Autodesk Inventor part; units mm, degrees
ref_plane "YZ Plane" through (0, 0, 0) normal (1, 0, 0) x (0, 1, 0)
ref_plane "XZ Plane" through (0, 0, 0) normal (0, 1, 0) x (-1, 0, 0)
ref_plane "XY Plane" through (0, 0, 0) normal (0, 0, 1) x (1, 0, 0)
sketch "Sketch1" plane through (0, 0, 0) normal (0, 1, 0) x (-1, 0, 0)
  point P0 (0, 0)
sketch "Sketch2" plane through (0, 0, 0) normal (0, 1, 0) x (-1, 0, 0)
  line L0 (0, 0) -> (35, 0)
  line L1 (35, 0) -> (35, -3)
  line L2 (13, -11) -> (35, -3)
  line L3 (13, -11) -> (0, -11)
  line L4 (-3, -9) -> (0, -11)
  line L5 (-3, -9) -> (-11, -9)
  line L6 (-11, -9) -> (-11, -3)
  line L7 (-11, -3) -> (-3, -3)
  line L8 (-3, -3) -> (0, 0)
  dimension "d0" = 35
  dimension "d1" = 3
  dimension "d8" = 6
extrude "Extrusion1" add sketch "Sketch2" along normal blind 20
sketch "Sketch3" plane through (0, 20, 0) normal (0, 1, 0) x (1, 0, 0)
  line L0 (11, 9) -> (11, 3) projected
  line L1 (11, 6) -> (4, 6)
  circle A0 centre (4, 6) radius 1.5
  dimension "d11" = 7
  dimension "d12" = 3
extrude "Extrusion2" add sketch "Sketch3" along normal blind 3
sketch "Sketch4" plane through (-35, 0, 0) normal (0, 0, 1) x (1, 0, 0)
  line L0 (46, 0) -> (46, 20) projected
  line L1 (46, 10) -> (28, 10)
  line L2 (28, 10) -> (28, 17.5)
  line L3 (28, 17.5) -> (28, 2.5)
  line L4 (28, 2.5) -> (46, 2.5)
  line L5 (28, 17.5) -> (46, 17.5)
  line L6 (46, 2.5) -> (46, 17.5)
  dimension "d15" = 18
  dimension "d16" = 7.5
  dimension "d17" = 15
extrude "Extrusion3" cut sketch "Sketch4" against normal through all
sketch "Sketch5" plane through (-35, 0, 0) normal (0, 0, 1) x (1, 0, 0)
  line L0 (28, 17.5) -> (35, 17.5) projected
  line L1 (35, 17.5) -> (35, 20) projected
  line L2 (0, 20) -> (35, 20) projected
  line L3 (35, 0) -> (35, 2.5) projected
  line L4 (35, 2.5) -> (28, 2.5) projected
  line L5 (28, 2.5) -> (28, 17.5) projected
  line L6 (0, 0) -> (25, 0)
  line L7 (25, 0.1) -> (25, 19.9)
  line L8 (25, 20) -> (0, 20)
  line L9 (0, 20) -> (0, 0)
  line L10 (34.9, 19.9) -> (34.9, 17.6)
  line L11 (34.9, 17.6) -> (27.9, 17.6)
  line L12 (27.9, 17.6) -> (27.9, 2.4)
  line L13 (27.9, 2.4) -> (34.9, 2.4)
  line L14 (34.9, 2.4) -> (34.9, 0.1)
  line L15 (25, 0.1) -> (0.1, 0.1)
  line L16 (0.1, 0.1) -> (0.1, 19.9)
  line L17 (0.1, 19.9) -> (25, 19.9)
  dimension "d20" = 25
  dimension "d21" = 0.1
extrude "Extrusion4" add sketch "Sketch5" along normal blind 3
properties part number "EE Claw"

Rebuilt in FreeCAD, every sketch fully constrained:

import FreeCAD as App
import Part
import Sketcher

V = App.Vector
Q = App.Units.Quantity

doc = App.newDocument("Part")
params = doc.addObject("Spreadsheet::Sheet", "Params")
for row, (alias, value) in enumerate([
    ("sketch1_width", "35 mm"),
    ("sketch1_height", "6 mm"),
    ("sketch1_height2", "3 mm"),
    ("sketch1_width2", "8 mm"),
    ("sketch1_width3", "13 mm"),
    ("pad1_length", "20 mm"),
    ("sketch2_diameter", "3 mm"),
    ("pad2_length", "3 mm"),
    ("sketch3_width", "18 mm"),
    ("sketch3_height", "15 mm"),
    ("sketch4_width", "24.9 mm"),
    ("sketch4_height", "19.8 mm"),
    ("pad3_length", "3 mm"),
], start=1):
    params.set(f"A{row}", alias)
    params.set(f"B{row}", "=" + value)
    params.setAlias(f"B{row}", alias)

body = doc.addObject("PartDesign::Body", "Body")

# Sketch on XZ plane
sketch1 = body.newObject("Sketcher::SketchObject", "Sketch")
sketch1.AttachmentSupport = (doc.getObject("XZ_Plane"), [""])
sketch1.MapMode = "FlatFace"
sketch1.addGeometry([
    Part.LineSegment(V(-35, 0, 0), V(0, 0, 0)),  # 0
    Part.LineSegment(V(0, 0, 0), V(3, -3, 0)),  # 1
    Part.LineSegment(V(3, -3, 0), V(11, -3, 0)),  # 2
    Part.LineSegment(V(11, -3, 0), V(11, -9, 0)),  # 3
    Part.LineSegment(V(11, -9, 0), V(3, -9, 0)),  # 4
    Part.LineSegment(V(3, -9, 0), V(0, -11, 0)),  # 5
    Part.LineSegment(V(0, -11, 0), V(-13, -11, 0)),  # 6
    Part.LineSegment(V(-13, -11, 0), V(-35, -3, 0)),  # 7
    Part.LineSegment(V(-35, -3, 0), V(-35, 0, 0)),  # 8
], False)
sketch1.addConstraint([
    Sketcher.Constraint("Coincident", 0, 2, 1, 1),
    Sketcher.Constraint("Coincident", 1, 2, 2, 1),
    Sketcher.Constraint("Coincident", 2, 2, 3, 1),
    Sketcher.Constraint("Coincident", 3, 2, 4, 1),
    Sketcher.Constraint("Coincident", 4, 2, 5, 1),
    Sketcher.Constraint("Coincident", 5, 2, 6, 1),
    Sketcher.Constraint("Coincident", 6, 2, 7, 1),
    Sketcher.Constraint("Coincident", 7, 2, 8, 1),
    Sketcher.Constraint("Coincident", 8, 2, 0, 1),
    Sketcher.Constraint("Horizontal", 0),
    Sketcher.Constraint("Horizontal", 2),
    Sketcher.Constraint("Vertical", 3),
    Sketcher.Constraint("Horizontal", 4),
    Sketcher.Constraint("Horizontal", 6),
    Sketcher.Constraint("Vertical", 8),
    Sketcher.Constraint("Coincident", 0, 2, -1, 1),
    Sketcher.Constraint("PointOnObject", 5, 2, -2),
    Sketcher.Constraint("Horizontal", 2, 2, 7, 2),
    Sketcher.Constraint("Vertical", 1, 2, 4, 2),
    Sketcher.Constraint("DistanceX", 0, 1, 0, 2, Q("35 mm")),
    Sketcher.Constraint("DistanceY", 3, 2, 3, 1, Q("6 mm")),
    Sketcher.Constraint("DistanceY", 8, 1, 8, 2, Q("3 mm")),
    Sketcher.Constraint("DistanceX", -1, 1, 1, 2, Q("3 mm")),
    Sketcher.Constraint("DistanceX", 2, 1, 2, 2, Q("8 mm")),
    Sketcher.Constraint("DistanceX", 6, 2, 6, 1, Q("13 mm")),
    Sketcher.Constraint("DistanceY", 5, 2, -1, 1, Q("11 mm")),
])
sketch1.setExpression("Constraints[19]", "Params.sketch1_width")
sketch1.setExpression("Constraints[20]", "Params.sketch1_height")
sketch1.setExpression("Constraints[21]", "Params.sketch1_height2")
sketch1.setExpression("Constraints[23]", "Params.sketch1_width2")
sketch1.setExpression("Constraints[24]", "Params.sketch1_width3")
pad1 = body.newObject("PartDesign::Pad", "Pad")
pad1.Profile = sketch1
pad1.setExpression("Length", "Params.pad1_length")
pad1.Reversed = True

# Sketch on XZ plane
sketch2 = body.newObject("Sketcher::SketchObject", "Sketch001")
sketch2.AttachmentSupport = (doc.getObject("XZ_Plane"), [""])
sketch2.MapMode = "FlatFace"
sketch2.AttachmentOffset = App.Placement(V(0, 0, -20), App.Rotation())
sketch2.addGeometry(Part.Circle(V(4, -6, 0), V(0, 0, 1), 1.5), False)
sketch2.addConstraint([
    Sketcher.Constraint("Diameter", 0, Q("3 mm")),
    Sketcher.Constraint("DistanceX", -1, 1, 0, 3, Q("4 mm")),
    Sketcher.Constraint("DistanceY", 0, 3, -1, 1, Q("6 mm")),
])
sketch2.setExpression("Constraints[0]", "Params.sketch2_diameter")
pad2 = body.newObject("PartDesign::Pad", "Pad001")
pad2.Profile = sketch2
pad2.setExpression("Length", "Params.pad2_length")
pad2.Reversed = True

# Sketch on XY plane
sketch3 = body.newObject("Sketcher::SketchObject", "Sketch002")
sketch3.AttachmentSupport = (doc.getObject("XY_Plane"), [""])
sketch3.MapMode = "FlatFace"
sketch3.addGeometry([
    Part.LineSegment(V(-7, 2, 0), V(11, 2, 0)),
    Part.LineSegment(V(11, 2, 0), V(11, 18, 0)),
    Part.LineSegment(V(11, 18, 0), V(-7, 18, 0)),
    Part.LineSegment(V(-7, 18, 0), V(-7, 2, 0)),
], False)
sketch3.addConstraint([
    Sketcher.Constraint("Coincident", 0, 2, 1, 1),
    Sketcher.Constraint("Coincident", 1, 2, 2, 1),
    Sketcher.Constraint("Coincident", 2, 2, 3, 1),
    Sketcher.Constraint("Coincident", 3, 2, 0, 1),
    Sketcher.Constraint("Horizontal", 0),
    Sketcher.Constraint("Vertical", 1),
    Sketcher.Constraint("Horizontal", 2),
    Sketcher.Constraint("Vertical", 3),
    Sketcher.Constraint("DistanceX", 0, 1, 0, 2, Q("18 mm")),
    Sketcher.Constraint("DistanceY", 1, 1, 1, 2, Q("15 mm")),
    Sketcher.Constraint("DistanceX", -1, 1, 0, 2, Q("11 mm")),
    Sketcher.Constraint("DistanceY", -1, 1, 0, 2, Q("2.5 mm")),
])
sketch3.setExpression("Constraints[8]", "Params.sketch3_width")
sketch3.setExpression("Constraints[9]", "Params.sketch3_height")
pocket1 = body.newObject("PartDesign::Pocket", "Pocket")
pocket1.Profile = sketch3
pocket1.Type = "ThroughAll"

# Sketch on XY plane
sketch4 = body.newObject("Sketcher::SketchObject", "Sketch003")
sketch4.AttachmentSupport = (doc.getObject("XY_Plane"), [""])
sketch4.MapMode = "FlatFace"
sketch4.addGeometry([
    Part.LineSegment(V(-35, 0, 0), V(-10, 0, 0)),
    Part.LineSegment(V(-10, 0, 0), V(-10, 20, 0)),
    Part.LineSegment(V(-10, 20, 0), V(-35, 20, 0)),
    Part.LineSegment(V(-35, 20, 0), V(-35, 0, 0)),
], False)
sketch4.addConstraint([
    Sketcher.Constraint("Coincident", 0, 2, 1, 1),
    Sketcher.Constraint("Coincident", 1, 2, 2, 1),
    Sketcher.Constraint("Coincident", 2, 2, 3, 1),
    Sketcher.Constraint("Coincident", 3, 2, 0, 1),
    Sketcher.Constraint("Horizontal", 0),
    Sketcher.Constraint("Vertical", 1),
    Sketcher.Constraint("Horizontal", 2),
    Sketcher.Constraint("Vertical", 3),
    Sketcher.Constraint("DistanceY", -1, 1, 0, 2, Q("0.1 mm")),
    Sketcher.Constraint("DistanceX", 0, 1, 0, 2, Q("24.9 mm")),
    Sketcher.Constraint("DistanceY", 1, 1, 1, 2, Q("19.8 mm")),
    Sketcher.Constraint("DistanceX", 0, 2, -1, 1, Q("10 mm")),
])
sketch4.setExpression("Constraints[9]", "Params.sketch4_width")
sketch4.setExpression("Constraints[10]", "Params.sketch4_height")
pad3 = body.newObject("PartDesign::Pad", "Pad002")
pad3.Profile = sketch4
pad3.setExpression("Length", "Params.pad3_length")

doc.recompute()
